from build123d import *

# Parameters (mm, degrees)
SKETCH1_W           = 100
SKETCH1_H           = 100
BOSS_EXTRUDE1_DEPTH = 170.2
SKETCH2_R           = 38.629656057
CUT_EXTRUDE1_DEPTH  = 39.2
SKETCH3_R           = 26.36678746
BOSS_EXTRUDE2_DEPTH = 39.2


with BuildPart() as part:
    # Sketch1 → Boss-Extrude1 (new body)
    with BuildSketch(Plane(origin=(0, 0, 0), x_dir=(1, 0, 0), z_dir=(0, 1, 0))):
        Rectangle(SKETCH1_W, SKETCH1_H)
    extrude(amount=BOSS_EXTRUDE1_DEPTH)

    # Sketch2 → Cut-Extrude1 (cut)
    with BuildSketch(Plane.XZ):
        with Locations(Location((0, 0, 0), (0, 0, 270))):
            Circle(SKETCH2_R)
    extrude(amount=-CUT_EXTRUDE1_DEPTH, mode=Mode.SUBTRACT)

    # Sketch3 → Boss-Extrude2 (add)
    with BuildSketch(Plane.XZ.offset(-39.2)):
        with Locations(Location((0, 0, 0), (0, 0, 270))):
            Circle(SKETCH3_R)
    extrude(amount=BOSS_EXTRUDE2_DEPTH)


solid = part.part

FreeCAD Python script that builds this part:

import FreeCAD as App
import Part
import Sketcher

V = App.Vector
Q = App.Units.Quantity

doc = App.newDocument("Part")
params = doc.addObject("Spreadsheet::Sheet", "Params")
for row, (alias, value) in enumerate([
    ("sketch1_width", "100 mm"),
    ("pad1_length", "170.2 mm"),
    ("pocket1_length", "39.2 mm"),
    ("pad2_length", "39.2 mm"),
], start=1):
    params.set(f"A{row}", alias)
    params.set(f"B{row}", "=" + value)
    params.setAlias(f"B{row}", alias)

body = doc.addObject("PartDesign::Body", "Body")

# Sketch on XZ plane
sketch1 = body.newObject("Sketcher::SketchObject", "Sketch")
sketch1.AttachmentSupport = (doc.getObject("XZ_Plane"), [""])
sketch1.MapMode = "FlatFace"
sketch1.addGeometry([
    Part.LineSegment(V(-50, -50, 0), V(-50, 50, 0)),
    Part.LineSegment(V(-50, 50, 0), V(50, 50, 0)),
    Part.LineSegment(V(50, 50, 0), V(50, -50, 0)),
    Part.LineSegment(V(50, -50, 0), V(-50, -50, 0)),
], False)
sketch1.addConstraint([
    Sketcher.Constraint("Coincident", 0, 2, 1, 1),
    Sketcher.Constraint("Coincident", 1, 2, 2, 1),
    Sketcher.Constraint("Coincident", 2, 2, 3, 1),
    Sketcher.Constraint("Coincident", 3, 2, 0, 1),
    Sketcher.Constraint("Vertical", 0),
    Sketcher.Constraint("Horizontal", 1),
    Sketcher.Constraint("Vertical", 2),
    Sketcher.Constraint("Horizontal", 3),
    Sketcher.Constraint("Symmetric", 0, 2, 2, 2, -1, 1),
    Sketcher.Constraint("Equal", 3, 0),
    Sketcher.Constraint("DistanceX", 1, 1, 1, 2, Q("100 mm")),
])
sketch1.setExpression("Constraints[10]", "Params.sketch1_width")
pad1 = body.newObject("PartDesign::Pad", "Pad")
pad1.Profile = sketch1
pad1.setExpression("Length", "Params.pad1_length")
pad1.Reversed = True

# Sketch on XZ plane
sketch2 = body.newObject("Sketcher::SketchObject", "Sketch001")
sketch2.AttachmentSupport = (doc.getObject("XZ_Plane"), [""])
sketch2.MapMode = "FlatFace"
sketch2.addGeometry(Part.Circle(V(0, 0, 0), V(0, 0, 1), 39), False)
sketch2.addConstraint([
    Sketcher.Constraint("Coincident", 0, 3, -1, 1),
    Sketcher.Constraint("Diameter", 0, Q("77.259312 mm")),
])
pocket1 = body.newObject("PartDesign::Pocket", "Pocket")
pocket1.Profile = sketch2
pocket1.setExpression("Length", "Params.pocket1_length")

# Sketch on XZ plane
sketch3 = body.newObject("Sketcher::SketchObject", "Sketch002")
sketch3.AttachmentSupport = (doc.getObject("XZ_Plane"), [""])
sketch3.MapMode = "FlatFace"
sketch3.AttachmentOffset = App.Placement(V(0, 0, -39.2), App.Rotation())
sketch3.addGeometry(Part.Circle(V(0, 0, 0), V(0, 0, 1), 26), False)
sketch3.addConstraint([
    Sketcher.Constraint("Coincident", 0, 3, -1, 1),
    Sketcher.Constraint("Diameter", 0, Q("52.733575 mm")),
])
pad2 = body.newObject("PartDesign::Pad", "Pad001")
pad2.Profile = sketch3
pad2.setExpression("Length", "Params.pad2_length")

doc.recompute()
